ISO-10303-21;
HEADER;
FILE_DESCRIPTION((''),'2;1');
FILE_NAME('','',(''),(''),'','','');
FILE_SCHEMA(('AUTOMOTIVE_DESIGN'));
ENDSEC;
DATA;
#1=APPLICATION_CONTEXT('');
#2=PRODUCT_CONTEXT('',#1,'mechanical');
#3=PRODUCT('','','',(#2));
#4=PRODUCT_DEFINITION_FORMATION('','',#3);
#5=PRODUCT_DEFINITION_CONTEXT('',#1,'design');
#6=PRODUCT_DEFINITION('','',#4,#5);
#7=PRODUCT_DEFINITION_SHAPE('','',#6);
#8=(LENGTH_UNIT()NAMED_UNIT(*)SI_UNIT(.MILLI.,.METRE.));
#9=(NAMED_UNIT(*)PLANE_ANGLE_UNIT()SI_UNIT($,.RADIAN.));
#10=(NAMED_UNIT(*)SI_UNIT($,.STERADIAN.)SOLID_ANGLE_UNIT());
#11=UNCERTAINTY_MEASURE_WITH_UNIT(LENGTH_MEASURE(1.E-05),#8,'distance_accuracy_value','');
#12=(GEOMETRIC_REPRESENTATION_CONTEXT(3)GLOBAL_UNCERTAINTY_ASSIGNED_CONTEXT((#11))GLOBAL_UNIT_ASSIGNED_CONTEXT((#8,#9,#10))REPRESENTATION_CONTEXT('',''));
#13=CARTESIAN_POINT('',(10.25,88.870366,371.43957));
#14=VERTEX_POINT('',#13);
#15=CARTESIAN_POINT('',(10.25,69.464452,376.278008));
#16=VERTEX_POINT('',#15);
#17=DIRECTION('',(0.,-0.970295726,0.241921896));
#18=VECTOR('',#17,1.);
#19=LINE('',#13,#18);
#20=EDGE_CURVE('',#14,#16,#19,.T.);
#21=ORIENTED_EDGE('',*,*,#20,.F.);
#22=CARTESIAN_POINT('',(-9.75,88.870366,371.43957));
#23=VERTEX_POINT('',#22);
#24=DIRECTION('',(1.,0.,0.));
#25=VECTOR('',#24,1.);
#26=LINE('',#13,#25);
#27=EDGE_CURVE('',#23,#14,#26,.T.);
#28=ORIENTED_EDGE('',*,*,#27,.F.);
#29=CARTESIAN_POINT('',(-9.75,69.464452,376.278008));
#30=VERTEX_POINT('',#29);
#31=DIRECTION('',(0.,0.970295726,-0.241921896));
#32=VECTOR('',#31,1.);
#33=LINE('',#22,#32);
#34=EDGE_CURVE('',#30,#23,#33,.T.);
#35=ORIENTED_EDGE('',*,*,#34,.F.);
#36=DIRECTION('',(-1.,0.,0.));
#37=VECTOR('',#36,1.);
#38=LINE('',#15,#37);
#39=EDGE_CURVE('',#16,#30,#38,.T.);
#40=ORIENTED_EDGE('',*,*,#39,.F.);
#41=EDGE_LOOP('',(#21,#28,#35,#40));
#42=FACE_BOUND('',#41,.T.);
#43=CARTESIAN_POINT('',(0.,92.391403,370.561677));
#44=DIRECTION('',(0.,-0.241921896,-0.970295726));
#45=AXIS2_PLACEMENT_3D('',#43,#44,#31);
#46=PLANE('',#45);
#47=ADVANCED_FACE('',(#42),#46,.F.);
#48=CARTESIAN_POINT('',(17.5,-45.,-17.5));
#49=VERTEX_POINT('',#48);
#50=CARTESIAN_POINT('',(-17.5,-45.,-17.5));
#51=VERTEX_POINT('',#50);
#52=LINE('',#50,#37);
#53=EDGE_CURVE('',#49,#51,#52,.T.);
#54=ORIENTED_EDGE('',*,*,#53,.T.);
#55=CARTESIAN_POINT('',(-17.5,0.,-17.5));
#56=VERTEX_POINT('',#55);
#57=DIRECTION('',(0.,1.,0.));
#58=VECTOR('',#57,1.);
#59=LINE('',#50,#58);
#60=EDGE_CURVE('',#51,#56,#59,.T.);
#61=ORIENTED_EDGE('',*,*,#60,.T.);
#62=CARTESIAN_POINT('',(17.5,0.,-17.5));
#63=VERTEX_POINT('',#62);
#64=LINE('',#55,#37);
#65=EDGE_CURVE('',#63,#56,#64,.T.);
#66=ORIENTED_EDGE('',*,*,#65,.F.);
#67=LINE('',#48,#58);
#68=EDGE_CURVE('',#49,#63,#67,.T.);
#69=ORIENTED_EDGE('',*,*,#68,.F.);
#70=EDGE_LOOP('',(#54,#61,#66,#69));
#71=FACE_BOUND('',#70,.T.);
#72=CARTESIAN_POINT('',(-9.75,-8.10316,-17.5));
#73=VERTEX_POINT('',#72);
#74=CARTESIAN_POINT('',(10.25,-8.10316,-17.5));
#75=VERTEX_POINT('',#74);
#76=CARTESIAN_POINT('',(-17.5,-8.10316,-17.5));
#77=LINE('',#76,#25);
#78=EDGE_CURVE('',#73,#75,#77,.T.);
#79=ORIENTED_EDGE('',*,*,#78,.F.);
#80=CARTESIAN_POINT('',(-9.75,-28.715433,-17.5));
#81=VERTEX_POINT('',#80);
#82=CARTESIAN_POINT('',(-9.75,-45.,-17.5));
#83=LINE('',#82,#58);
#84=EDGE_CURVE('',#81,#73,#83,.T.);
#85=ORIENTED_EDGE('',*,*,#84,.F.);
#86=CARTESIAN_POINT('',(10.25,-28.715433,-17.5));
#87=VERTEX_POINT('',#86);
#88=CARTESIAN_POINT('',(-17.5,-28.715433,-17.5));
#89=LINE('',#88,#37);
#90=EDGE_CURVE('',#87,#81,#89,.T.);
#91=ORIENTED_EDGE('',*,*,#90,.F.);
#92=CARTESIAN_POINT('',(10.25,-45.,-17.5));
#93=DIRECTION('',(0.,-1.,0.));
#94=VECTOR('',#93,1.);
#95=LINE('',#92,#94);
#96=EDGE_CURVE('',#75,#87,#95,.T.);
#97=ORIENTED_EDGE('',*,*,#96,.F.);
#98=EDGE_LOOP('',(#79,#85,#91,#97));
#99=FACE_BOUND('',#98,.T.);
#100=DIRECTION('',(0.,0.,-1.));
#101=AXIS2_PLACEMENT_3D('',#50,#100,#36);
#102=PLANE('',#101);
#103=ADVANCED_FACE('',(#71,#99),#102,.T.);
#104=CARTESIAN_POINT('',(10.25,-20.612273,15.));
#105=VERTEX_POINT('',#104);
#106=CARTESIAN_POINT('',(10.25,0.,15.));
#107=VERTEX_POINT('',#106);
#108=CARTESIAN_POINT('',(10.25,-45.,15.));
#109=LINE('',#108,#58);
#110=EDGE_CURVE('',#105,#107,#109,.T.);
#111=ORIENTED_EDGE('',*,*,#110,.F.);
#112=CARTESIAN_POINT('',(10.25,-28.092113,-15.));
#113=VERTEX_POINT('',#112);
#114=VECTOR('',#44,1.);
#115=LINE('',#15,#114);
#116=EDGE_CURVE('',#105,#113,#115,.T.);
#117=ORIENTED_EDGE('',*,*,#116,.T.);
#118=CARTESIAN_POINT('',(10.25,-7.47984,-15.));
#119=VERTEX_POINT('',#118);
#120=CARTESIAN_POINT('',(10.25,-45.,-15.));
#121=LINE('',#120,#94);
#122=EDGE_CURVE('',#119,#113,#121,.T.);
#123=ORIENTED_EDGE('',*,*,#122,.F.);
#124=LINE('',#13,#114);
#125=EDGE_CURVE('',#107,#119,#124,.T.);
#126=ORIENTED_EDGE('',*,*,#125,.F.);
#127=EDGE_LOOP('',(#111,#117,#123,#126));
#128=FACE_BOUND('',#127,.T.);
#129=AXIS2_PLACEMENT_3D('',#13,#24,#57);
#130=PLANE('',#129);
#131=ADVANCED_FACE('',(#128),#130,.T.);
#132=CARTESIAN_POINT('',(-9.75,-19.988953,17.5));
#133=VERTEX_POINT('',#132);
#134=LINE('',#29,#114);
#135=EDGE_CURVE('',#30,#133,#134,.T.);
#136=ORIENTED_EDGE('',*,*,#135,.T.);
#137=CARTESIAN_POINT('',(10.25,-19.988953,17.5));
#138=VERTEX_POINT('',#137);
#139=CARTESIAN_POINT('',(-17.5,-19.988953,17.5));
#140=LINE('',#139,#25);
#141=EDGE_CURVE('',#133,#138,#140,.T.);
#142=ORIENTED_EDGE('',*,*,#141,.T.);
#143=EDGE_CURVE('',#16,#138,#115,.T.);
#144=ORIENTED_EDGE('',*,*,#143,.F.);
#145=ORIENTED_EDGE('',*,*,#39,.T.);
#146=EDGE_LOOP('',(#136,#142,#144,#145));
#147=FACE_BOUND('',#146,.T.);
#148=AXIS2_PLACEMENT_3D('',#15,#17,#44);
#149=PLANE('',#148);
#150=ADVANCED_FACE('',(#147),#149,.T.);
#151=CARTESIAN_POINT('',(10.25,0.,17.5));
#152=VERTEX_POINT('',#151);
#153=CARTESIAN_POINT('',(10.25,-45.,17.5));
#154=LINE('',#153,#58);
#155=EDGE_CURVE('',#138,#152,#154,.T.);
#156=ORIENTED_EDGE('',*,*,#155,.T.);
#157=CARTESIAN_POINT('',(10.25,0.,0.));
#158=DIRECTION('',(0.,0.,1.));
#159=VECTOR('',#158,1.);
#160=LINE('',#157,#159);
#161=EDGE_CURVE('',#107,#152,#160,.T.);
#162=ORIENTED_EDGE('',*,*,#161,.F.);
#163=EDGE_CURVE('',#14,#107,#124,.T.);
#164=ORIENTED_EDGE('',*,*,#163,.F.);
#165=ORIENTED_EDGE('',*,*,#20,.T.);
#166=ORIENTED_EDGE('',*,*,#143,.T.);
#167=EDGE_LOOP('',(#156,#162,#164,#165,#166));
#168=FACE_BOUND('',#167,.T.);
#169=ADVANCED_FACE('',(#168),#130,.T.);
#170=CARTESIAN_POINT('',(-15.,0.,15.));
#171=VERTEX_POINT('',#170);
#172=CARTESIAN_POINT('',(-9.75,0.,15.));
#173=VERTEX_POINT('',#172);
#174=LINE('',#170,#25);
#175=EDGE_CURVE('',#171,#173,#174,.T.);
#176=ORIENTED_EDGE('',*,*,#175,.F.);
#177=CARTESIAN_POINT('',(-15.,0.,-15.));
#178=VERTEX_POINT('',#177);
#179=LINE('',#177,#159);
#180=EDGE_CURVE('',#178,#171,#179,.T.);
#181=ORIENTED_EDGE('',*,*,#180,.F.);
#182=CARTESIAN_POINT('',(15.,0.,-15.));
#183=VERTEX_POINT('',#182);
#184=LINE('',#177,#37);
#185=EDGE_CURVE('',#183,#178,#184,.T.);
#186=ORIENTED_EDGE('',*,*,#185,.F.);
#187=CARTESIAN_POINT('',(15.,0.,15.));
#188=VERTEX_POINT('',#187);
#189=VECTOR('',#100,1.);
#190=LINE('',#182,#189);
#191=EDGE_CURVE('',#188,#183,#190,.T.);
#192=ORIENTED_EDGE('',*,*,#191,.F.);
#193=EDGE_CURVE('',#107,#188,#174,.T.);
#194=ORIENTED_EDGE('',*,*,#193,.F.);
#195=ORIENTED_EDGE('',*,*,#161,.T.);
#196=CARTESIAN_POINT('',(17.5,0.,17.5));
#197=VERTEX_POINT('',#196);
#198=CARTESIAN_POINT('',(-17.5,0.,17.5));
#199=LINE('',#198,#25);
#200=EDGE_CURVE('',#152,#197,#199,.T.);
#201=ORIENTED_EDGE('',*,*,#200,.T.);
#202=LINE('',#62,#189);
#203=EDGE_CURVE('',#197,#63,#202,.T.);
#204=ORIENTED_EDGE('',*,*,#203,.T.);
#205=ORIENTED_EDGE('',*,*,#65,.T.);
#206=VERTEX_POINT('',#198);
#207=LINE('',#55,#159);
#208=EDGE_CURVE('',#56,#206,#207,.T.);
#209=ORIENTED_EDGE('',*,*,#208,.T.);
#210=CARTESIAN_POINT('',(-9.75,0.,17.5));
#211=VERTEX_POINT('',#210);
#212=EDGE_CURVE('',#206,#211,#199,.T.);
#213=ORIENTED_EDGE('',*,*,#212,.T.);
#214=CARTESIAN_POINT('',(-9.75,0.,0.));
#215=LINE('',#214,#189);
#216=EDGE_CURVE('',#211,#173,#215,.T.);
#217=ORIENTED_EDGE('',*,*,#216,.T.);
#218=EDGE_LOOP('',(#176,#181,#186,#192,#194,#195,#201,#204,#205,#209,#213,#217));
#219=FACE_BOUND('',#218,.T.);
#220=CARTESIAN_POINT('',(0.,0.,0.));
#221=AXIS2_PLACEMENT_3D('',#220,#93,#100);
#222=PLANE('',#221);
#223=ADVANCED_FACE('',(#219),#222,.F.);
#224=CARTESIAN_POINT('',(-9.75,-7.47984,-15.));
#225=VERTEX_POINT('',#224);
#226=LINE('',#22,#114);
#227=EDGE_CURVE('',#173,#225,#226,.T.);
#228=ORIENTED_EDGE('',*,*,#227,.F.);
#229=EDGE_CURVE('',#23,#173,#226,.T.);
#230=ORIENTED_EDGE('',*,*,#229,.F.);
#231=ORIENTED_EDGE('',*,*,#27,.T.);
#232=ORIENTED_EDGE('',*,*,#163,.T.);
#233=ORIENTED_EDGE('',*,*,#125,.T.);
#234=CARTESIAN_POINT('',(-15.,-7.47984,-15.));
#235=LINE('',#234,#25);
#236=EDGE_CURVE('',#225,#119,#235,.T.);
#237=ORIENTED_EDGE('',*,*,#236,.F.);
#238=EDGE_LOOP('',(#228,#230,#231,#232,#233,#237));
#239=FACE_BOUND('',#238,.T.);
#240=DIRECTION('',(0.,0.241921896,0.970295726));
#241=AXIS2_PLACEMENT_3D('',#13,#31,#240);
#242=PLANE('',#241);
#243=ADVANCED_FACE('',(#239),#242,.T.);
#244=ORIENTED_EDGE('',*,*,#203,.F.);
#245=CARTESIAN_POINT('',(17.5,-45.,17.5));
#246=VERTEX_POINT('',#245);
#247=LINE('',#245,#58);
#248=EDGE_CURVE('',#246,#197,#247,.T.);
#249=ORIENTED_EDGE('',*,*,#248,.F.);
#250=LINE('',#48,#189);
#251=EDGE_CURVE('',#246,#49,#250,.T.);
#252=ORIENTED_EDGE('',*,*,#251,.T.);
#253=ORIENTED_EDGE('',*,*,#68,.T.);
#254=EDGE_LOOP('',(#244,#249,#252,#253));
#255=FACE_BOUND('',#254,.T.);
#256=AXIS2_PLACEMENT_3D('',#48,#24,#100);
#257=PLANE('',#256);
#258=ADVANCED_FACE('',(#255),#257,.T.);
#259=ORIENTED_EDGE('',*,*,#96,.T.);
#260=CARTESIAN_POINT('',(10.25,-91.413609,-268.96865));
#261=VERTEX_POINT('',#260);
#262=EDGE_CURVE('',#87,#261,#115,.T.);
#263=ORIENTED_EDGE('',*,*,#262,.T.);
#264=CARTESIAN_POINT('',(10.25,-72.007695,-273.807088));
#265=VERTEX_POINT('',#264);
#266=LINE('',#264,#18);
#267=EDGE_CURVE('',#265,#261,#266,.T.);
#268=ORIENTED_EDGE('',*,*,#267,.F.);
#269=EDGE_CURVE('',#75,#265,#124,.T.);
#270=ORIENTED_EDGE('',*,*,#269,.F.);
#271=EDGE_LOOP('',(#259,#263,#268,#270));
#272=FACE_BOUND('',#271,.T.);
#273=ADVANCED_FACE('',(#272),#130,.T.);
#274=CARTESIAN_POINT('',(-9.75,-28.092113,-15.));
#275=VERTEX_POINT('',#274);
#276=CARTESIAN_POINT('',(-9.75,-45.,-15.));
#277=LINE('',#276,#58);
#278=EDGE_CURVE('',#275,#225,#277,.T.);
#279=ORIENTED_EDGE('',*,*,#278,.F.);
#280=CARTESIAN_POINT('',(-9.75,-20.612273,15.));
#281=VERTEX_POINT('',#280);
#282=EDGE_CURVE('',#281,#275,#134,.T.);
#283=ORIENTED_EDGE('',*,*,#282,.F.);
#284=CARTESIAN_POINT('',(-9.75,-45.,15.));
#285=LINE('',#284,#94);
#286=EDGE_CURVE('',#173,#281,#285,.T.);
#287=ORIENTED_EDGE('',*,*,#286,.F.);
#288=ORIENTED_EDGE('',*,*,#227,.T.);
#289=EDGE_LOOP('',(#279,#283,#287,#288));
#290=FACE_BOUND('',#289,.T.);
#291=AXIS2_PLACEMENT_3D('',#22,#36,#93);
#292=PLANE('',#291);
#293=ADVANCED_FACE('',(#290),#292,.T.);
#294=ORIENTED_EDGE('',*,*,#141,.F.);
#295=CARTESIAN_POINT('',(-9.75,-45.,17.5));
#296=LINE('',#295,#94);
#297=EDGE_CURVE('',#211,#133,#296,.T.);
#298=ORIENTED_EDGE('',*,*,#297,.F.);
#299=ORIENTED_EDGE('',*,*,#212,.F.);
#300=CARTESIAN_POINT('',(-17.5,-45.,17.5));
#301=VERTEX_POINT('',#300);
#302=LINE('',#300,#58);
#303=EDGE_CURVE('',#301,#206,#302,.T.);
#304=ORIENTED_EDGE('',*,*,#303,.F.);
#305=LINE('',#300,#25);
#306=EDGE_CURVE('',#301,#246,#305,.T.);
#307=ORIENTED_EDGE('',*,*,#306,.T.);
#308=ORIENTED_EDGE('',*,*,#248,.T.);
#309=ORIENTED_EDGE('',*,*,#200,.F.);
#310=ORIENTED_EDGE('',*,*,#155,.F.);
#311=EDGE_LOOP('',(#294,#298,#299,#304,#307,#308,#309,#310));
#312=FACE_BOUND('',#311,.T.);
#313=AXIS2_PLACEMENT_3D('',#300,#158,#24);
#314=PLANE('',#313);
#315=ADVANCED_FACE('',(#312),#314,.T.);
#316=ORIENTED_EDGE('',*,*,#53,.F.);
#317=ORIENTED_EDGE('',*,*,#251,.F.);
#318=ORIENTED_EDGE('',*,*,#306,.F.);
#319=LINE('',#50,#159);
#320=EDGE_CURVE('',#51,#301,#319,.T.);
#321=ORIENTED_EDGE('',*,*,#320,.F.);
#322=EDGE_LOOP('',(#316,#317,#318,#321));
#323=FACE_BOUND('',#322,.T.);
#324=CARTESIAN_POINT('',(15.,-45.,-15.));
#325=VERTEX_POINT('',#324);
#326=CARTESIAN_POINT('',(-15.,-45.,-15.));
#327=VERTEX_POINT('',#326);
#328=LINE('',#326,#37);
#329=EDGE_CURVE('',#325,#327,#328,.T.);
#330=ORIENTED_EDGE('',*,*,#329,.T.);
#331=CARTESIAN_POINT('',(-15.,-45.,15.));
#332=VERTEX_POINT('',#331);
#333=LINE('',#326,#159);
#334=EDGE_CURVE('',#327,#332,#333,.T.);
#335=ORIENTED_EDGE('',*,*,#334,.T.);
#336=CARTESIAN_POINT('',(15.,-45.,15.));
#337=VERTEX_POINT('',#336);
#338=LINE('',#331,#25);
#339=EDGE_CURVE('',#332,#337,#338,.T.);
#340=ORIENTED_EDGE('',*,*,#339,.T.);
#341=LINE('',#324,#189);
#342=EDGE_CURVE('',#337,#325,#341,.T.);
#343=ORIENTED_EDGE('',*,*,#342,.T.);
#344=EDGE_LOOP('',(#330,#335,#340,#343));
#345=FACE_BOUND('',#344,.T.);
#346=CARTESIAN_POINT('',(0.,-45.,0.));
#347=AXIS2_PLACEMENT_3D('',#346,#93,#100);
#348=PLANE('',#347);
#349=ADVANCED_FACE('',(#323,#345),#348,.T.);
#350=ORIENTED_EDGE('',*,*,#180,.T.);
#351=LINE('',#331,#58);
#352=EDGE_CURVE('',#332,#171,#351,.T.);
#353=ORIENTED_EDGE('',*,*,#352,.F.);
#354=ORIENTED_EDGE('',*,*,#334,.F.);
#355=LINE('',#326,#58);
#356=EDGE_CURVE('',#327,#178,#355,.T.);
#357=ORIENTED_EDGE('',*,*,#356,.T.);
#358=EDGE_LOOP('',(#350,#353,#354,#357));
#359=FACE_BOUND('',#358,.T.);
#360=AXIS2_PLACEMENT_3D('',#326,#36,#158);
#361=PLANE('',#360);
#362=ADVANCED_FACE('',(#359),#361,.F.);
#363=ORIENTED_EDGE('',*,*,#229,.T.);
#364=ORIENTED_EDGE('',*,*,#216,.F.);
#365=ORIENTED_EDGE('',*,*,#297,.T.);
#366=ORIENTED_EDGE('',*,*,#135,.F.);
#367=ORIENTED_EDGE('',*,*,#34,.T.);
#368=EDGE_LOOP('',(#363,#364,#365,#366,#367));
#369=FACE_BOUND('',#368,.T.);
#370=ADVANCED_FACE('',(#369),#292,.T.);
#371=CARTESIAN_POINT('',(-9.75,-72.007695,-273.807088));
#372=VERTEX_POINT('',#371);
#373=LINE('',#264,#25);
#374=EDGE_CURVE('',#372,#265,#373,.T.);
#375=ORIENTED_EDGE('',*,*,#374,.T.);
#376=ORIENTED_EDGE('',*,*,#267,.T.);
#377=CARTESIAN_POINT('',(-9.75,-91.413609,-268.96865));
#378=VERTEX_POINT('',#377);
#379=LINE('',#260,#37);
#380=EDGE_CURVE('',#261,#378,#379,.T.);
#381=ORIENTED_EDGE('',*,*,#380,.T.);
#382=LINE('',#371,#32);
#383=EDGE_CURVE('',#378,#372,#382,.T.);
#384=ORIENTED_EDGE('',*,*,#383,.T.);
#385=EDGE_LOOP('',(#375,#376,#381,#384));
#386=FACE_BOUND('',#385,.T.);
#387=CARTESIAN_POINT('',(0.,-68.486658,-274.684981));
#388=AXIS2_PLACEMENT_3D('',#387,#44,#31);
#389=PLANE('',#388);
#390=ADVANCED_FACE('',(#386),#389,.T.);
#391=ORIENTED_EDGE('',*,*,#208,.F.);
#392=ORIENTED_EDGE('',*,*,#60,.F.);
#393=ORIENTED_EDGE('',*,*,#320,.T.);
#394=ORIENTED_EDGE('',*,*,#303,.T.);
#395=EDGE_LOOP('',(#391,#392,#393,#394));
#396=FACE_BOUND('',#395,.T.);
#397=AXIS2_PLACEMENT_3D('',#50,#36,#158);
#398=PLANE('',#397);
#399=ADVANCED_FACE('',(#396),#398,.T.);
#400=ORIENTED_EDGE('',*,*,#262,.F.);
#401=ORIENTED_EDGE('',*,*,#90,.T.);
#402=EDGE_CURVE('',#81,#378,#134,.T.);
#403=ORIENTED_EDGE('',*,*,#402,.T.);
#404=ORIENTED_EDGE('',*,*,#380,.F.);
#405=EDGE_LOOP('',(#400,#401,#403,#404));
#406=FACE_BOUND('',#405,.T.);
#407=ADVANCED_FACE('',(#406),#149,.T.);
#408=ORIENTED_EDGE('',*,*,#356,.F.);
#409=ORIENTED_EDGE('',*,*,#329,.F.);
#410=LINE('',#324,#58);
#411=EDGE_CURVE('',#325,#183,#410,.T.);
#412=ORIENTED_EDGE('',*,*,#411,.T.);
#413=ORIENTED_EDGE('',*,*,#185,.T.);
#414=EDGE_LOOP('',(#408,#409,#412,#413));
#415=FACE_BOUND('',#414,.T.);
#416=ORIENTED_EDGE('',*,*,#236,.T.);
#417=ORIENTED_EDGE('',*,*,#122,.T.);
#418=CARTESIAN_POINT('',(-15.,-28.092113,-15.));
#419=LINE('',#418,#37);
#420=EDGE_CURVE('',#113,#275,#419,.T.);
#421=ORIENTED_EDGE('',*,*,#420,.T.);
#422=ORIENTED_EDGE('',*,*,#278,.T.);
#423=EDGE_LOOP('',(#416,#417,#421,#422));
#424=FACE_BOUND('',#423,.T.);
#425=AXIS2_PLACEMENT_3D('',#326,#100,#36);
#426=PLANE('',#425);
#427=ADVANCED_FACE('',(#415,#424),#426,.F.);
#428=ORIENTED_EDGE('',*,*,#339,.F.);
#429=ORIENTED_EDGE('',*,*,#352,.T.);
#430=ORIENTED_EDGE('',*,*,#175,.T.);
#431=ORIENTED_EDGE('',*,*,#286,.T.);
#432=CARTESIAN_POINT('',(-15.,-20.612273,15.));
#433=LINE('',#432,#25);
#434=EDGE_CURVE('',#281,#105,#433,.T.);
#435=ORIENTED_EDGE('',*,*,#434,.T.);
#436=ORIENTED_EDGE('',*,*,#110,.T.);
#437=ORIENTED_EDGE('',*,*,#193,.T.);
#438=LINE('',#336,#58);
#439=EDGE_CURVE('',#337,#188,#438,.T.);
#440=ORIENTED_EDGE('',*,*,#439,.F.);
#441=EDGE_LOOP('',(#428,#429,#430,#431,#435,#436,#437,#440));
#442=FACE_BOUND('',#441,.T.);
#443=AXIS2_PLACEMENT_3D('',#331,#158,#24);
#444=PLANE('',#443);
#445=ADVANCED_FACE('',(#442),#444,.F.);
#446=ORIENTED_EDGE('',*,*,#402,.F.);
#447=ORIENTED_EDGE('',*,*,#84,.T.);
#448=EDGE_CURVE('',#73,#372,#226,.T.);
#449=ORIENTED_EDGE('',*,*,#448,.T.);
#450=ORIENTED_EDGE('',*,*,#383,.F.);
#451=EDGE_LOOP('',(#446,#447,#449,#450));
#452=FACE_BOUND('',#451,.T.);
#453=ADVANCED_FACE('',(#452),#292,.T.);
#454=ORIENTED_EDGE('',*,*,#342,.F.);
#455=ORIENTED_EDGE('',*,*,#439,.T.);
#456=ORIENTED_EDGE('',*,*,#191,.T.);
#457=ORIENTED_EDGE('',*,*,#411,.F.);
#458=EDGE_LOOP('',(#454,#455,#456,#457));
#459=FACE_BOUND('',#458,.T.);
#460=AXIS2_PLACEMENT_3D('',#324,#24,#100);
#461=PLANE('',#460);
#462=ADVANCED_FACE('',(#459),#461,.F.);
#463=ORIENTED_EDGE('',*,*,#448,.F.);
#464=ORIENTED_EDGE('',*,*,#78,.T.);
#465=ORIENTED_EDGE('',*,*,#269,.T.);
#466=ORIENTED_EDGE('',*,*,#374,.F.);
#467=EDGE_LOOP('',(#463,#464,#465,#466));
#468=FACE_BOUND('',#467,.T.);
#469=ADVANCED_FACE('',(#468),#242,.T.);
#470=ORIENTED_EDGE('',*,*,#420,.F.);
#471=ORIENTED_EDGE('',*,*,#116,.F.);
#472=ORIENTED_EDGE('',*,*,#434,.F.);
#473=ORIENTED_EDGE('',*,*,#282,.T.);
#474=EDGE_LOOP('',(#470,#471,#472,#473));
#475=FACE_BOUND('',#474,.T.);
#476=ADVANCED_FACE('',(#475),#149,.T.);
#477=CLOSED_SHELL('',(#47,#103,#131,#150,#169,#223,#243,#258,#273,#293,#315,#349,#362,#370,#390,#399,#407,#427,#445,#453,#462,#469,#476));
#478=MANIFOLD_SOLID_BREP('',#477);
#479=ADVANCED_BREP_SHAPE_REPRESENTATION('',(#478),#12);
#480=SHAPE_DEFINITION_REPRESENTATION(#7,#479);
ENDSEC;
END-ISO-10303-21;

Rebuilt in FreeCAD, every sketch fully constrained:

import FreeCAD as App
import Part
import Sketcher
from FreeCAD import Vector


def add_polygon(sketch, points):
    """Adds a closed chain of lines whose ends are joined by coincident constraints."""
    first, n = sketch.GeometryCount, len(points)
    for a, b in zip(points, points[1:] + points[:1]):
        sketch.addGeometry(Part.LineSegment(App.Vector(*a, 0), App.Vector(*b, 0)), False)
    for i in range(n):
        sketch.addConstraint(Sketcher.Constraint("Coincident", first + i, 2, first + (i + 1) % n, 1))

doc = App.newDocument("Part")
body = doc.addObject("PartDesign::Body", "Body")

# Sketch on XZ plane
sketch1 = body.newObject("Sketcher::SketchObject", "Sketch")
sketch1.AttachmentSupport = (doc.getObject("XZ_Plane"), [""])
sketch1.MapMode = "FlatFace"
add_polygon(sketch1, [(-18, -18), (-18, 18), (18, 18), (18, -18)])  # lines 0-3
add_polygon(sketch1, [(15, 15), (-15, 15), (-15, -15), (15, -15)])  # lines 4-7
sketch1.addConstraint([
    Sketcher.Constraint("Vertical", 0),
    Sketcher.Constraint("Horizontal", 1),
    Sketcher.Constraint("Vertical", 2),
    Sketcher.Constraint("Horizontal", 3),
    Sketcher.Constraint("Horizontal", 4),
    Sketcher.Constraint("Vertical", 5),
    Sketcher.Constraint("Horizontal", 6),
    Sketcher.Constraint("Vertical", 7),
    Sketcher.Constraint("Symmetric", 0, 2, 2, 2, -1, 1),
    Sketcher.Constraint("Symmetric", 4, 2, 6, 2, -1, 1),
    Sketcher.Constraint("Equal", 3, 0),
    Sketcher.Constraint("Equal", 6, 5),
    Sketcher.Constraint("DistanceX", 1, 1, 1, 2, 35.0),
    Sketcher.Constraint("DistanceX", 4, 2, 4, 1, 30.0),
])
pad1 = body.newObject("PartDesign::Pad", "Pad")
pad1.Profile = sketch1
pad1.Length = 45

# Sketch on an angled plane
sketch2 = body.newObject("Sketcher::SketchObject", "Sketch001")
sketch2.Placement = App.Placement(Vector(0, 4.694716, 18.829476), App.Rotation(Vector(1, 0, 0), Vector(0, -0.970295726, 0.241921896), Vector(0, -0.241921896, -0.970295726), "ZXY"))
add_polygon(sketch2, [(-10, 24), (-10, 4), (10, 4), (10, 24)])  # lines 0-3
sketch2.addConstraint([
    Sketcher.Constraint("Vertical", 0),
    Sketcher.Constraint("Horizontal", 1),
    Sketcher.Constraint("Vertical", 2),
    Sketcher.Constraint("Horizontal", 3),
    Sketcher.Constraint("Equal", 3, 0),
    Sketcher.Constraint("DistanceX", 1, 1, 1, 2, 20.0),
    Sketcher.Constraint("DistanceX", 0, 2, -1, 1, 9.75),
    Sketcher.Constraint("DistanceY", -1, 1, 0, 2, 3.628828),
])
pad2 = body.newObject("PartDesign::Pad", "Pad001")
pad2.Profile = sketch2
pad2.Type = "TwoLengths"
pad2.Length = 302.5
pad2.Length2 = 362.5

doc.recompute()
